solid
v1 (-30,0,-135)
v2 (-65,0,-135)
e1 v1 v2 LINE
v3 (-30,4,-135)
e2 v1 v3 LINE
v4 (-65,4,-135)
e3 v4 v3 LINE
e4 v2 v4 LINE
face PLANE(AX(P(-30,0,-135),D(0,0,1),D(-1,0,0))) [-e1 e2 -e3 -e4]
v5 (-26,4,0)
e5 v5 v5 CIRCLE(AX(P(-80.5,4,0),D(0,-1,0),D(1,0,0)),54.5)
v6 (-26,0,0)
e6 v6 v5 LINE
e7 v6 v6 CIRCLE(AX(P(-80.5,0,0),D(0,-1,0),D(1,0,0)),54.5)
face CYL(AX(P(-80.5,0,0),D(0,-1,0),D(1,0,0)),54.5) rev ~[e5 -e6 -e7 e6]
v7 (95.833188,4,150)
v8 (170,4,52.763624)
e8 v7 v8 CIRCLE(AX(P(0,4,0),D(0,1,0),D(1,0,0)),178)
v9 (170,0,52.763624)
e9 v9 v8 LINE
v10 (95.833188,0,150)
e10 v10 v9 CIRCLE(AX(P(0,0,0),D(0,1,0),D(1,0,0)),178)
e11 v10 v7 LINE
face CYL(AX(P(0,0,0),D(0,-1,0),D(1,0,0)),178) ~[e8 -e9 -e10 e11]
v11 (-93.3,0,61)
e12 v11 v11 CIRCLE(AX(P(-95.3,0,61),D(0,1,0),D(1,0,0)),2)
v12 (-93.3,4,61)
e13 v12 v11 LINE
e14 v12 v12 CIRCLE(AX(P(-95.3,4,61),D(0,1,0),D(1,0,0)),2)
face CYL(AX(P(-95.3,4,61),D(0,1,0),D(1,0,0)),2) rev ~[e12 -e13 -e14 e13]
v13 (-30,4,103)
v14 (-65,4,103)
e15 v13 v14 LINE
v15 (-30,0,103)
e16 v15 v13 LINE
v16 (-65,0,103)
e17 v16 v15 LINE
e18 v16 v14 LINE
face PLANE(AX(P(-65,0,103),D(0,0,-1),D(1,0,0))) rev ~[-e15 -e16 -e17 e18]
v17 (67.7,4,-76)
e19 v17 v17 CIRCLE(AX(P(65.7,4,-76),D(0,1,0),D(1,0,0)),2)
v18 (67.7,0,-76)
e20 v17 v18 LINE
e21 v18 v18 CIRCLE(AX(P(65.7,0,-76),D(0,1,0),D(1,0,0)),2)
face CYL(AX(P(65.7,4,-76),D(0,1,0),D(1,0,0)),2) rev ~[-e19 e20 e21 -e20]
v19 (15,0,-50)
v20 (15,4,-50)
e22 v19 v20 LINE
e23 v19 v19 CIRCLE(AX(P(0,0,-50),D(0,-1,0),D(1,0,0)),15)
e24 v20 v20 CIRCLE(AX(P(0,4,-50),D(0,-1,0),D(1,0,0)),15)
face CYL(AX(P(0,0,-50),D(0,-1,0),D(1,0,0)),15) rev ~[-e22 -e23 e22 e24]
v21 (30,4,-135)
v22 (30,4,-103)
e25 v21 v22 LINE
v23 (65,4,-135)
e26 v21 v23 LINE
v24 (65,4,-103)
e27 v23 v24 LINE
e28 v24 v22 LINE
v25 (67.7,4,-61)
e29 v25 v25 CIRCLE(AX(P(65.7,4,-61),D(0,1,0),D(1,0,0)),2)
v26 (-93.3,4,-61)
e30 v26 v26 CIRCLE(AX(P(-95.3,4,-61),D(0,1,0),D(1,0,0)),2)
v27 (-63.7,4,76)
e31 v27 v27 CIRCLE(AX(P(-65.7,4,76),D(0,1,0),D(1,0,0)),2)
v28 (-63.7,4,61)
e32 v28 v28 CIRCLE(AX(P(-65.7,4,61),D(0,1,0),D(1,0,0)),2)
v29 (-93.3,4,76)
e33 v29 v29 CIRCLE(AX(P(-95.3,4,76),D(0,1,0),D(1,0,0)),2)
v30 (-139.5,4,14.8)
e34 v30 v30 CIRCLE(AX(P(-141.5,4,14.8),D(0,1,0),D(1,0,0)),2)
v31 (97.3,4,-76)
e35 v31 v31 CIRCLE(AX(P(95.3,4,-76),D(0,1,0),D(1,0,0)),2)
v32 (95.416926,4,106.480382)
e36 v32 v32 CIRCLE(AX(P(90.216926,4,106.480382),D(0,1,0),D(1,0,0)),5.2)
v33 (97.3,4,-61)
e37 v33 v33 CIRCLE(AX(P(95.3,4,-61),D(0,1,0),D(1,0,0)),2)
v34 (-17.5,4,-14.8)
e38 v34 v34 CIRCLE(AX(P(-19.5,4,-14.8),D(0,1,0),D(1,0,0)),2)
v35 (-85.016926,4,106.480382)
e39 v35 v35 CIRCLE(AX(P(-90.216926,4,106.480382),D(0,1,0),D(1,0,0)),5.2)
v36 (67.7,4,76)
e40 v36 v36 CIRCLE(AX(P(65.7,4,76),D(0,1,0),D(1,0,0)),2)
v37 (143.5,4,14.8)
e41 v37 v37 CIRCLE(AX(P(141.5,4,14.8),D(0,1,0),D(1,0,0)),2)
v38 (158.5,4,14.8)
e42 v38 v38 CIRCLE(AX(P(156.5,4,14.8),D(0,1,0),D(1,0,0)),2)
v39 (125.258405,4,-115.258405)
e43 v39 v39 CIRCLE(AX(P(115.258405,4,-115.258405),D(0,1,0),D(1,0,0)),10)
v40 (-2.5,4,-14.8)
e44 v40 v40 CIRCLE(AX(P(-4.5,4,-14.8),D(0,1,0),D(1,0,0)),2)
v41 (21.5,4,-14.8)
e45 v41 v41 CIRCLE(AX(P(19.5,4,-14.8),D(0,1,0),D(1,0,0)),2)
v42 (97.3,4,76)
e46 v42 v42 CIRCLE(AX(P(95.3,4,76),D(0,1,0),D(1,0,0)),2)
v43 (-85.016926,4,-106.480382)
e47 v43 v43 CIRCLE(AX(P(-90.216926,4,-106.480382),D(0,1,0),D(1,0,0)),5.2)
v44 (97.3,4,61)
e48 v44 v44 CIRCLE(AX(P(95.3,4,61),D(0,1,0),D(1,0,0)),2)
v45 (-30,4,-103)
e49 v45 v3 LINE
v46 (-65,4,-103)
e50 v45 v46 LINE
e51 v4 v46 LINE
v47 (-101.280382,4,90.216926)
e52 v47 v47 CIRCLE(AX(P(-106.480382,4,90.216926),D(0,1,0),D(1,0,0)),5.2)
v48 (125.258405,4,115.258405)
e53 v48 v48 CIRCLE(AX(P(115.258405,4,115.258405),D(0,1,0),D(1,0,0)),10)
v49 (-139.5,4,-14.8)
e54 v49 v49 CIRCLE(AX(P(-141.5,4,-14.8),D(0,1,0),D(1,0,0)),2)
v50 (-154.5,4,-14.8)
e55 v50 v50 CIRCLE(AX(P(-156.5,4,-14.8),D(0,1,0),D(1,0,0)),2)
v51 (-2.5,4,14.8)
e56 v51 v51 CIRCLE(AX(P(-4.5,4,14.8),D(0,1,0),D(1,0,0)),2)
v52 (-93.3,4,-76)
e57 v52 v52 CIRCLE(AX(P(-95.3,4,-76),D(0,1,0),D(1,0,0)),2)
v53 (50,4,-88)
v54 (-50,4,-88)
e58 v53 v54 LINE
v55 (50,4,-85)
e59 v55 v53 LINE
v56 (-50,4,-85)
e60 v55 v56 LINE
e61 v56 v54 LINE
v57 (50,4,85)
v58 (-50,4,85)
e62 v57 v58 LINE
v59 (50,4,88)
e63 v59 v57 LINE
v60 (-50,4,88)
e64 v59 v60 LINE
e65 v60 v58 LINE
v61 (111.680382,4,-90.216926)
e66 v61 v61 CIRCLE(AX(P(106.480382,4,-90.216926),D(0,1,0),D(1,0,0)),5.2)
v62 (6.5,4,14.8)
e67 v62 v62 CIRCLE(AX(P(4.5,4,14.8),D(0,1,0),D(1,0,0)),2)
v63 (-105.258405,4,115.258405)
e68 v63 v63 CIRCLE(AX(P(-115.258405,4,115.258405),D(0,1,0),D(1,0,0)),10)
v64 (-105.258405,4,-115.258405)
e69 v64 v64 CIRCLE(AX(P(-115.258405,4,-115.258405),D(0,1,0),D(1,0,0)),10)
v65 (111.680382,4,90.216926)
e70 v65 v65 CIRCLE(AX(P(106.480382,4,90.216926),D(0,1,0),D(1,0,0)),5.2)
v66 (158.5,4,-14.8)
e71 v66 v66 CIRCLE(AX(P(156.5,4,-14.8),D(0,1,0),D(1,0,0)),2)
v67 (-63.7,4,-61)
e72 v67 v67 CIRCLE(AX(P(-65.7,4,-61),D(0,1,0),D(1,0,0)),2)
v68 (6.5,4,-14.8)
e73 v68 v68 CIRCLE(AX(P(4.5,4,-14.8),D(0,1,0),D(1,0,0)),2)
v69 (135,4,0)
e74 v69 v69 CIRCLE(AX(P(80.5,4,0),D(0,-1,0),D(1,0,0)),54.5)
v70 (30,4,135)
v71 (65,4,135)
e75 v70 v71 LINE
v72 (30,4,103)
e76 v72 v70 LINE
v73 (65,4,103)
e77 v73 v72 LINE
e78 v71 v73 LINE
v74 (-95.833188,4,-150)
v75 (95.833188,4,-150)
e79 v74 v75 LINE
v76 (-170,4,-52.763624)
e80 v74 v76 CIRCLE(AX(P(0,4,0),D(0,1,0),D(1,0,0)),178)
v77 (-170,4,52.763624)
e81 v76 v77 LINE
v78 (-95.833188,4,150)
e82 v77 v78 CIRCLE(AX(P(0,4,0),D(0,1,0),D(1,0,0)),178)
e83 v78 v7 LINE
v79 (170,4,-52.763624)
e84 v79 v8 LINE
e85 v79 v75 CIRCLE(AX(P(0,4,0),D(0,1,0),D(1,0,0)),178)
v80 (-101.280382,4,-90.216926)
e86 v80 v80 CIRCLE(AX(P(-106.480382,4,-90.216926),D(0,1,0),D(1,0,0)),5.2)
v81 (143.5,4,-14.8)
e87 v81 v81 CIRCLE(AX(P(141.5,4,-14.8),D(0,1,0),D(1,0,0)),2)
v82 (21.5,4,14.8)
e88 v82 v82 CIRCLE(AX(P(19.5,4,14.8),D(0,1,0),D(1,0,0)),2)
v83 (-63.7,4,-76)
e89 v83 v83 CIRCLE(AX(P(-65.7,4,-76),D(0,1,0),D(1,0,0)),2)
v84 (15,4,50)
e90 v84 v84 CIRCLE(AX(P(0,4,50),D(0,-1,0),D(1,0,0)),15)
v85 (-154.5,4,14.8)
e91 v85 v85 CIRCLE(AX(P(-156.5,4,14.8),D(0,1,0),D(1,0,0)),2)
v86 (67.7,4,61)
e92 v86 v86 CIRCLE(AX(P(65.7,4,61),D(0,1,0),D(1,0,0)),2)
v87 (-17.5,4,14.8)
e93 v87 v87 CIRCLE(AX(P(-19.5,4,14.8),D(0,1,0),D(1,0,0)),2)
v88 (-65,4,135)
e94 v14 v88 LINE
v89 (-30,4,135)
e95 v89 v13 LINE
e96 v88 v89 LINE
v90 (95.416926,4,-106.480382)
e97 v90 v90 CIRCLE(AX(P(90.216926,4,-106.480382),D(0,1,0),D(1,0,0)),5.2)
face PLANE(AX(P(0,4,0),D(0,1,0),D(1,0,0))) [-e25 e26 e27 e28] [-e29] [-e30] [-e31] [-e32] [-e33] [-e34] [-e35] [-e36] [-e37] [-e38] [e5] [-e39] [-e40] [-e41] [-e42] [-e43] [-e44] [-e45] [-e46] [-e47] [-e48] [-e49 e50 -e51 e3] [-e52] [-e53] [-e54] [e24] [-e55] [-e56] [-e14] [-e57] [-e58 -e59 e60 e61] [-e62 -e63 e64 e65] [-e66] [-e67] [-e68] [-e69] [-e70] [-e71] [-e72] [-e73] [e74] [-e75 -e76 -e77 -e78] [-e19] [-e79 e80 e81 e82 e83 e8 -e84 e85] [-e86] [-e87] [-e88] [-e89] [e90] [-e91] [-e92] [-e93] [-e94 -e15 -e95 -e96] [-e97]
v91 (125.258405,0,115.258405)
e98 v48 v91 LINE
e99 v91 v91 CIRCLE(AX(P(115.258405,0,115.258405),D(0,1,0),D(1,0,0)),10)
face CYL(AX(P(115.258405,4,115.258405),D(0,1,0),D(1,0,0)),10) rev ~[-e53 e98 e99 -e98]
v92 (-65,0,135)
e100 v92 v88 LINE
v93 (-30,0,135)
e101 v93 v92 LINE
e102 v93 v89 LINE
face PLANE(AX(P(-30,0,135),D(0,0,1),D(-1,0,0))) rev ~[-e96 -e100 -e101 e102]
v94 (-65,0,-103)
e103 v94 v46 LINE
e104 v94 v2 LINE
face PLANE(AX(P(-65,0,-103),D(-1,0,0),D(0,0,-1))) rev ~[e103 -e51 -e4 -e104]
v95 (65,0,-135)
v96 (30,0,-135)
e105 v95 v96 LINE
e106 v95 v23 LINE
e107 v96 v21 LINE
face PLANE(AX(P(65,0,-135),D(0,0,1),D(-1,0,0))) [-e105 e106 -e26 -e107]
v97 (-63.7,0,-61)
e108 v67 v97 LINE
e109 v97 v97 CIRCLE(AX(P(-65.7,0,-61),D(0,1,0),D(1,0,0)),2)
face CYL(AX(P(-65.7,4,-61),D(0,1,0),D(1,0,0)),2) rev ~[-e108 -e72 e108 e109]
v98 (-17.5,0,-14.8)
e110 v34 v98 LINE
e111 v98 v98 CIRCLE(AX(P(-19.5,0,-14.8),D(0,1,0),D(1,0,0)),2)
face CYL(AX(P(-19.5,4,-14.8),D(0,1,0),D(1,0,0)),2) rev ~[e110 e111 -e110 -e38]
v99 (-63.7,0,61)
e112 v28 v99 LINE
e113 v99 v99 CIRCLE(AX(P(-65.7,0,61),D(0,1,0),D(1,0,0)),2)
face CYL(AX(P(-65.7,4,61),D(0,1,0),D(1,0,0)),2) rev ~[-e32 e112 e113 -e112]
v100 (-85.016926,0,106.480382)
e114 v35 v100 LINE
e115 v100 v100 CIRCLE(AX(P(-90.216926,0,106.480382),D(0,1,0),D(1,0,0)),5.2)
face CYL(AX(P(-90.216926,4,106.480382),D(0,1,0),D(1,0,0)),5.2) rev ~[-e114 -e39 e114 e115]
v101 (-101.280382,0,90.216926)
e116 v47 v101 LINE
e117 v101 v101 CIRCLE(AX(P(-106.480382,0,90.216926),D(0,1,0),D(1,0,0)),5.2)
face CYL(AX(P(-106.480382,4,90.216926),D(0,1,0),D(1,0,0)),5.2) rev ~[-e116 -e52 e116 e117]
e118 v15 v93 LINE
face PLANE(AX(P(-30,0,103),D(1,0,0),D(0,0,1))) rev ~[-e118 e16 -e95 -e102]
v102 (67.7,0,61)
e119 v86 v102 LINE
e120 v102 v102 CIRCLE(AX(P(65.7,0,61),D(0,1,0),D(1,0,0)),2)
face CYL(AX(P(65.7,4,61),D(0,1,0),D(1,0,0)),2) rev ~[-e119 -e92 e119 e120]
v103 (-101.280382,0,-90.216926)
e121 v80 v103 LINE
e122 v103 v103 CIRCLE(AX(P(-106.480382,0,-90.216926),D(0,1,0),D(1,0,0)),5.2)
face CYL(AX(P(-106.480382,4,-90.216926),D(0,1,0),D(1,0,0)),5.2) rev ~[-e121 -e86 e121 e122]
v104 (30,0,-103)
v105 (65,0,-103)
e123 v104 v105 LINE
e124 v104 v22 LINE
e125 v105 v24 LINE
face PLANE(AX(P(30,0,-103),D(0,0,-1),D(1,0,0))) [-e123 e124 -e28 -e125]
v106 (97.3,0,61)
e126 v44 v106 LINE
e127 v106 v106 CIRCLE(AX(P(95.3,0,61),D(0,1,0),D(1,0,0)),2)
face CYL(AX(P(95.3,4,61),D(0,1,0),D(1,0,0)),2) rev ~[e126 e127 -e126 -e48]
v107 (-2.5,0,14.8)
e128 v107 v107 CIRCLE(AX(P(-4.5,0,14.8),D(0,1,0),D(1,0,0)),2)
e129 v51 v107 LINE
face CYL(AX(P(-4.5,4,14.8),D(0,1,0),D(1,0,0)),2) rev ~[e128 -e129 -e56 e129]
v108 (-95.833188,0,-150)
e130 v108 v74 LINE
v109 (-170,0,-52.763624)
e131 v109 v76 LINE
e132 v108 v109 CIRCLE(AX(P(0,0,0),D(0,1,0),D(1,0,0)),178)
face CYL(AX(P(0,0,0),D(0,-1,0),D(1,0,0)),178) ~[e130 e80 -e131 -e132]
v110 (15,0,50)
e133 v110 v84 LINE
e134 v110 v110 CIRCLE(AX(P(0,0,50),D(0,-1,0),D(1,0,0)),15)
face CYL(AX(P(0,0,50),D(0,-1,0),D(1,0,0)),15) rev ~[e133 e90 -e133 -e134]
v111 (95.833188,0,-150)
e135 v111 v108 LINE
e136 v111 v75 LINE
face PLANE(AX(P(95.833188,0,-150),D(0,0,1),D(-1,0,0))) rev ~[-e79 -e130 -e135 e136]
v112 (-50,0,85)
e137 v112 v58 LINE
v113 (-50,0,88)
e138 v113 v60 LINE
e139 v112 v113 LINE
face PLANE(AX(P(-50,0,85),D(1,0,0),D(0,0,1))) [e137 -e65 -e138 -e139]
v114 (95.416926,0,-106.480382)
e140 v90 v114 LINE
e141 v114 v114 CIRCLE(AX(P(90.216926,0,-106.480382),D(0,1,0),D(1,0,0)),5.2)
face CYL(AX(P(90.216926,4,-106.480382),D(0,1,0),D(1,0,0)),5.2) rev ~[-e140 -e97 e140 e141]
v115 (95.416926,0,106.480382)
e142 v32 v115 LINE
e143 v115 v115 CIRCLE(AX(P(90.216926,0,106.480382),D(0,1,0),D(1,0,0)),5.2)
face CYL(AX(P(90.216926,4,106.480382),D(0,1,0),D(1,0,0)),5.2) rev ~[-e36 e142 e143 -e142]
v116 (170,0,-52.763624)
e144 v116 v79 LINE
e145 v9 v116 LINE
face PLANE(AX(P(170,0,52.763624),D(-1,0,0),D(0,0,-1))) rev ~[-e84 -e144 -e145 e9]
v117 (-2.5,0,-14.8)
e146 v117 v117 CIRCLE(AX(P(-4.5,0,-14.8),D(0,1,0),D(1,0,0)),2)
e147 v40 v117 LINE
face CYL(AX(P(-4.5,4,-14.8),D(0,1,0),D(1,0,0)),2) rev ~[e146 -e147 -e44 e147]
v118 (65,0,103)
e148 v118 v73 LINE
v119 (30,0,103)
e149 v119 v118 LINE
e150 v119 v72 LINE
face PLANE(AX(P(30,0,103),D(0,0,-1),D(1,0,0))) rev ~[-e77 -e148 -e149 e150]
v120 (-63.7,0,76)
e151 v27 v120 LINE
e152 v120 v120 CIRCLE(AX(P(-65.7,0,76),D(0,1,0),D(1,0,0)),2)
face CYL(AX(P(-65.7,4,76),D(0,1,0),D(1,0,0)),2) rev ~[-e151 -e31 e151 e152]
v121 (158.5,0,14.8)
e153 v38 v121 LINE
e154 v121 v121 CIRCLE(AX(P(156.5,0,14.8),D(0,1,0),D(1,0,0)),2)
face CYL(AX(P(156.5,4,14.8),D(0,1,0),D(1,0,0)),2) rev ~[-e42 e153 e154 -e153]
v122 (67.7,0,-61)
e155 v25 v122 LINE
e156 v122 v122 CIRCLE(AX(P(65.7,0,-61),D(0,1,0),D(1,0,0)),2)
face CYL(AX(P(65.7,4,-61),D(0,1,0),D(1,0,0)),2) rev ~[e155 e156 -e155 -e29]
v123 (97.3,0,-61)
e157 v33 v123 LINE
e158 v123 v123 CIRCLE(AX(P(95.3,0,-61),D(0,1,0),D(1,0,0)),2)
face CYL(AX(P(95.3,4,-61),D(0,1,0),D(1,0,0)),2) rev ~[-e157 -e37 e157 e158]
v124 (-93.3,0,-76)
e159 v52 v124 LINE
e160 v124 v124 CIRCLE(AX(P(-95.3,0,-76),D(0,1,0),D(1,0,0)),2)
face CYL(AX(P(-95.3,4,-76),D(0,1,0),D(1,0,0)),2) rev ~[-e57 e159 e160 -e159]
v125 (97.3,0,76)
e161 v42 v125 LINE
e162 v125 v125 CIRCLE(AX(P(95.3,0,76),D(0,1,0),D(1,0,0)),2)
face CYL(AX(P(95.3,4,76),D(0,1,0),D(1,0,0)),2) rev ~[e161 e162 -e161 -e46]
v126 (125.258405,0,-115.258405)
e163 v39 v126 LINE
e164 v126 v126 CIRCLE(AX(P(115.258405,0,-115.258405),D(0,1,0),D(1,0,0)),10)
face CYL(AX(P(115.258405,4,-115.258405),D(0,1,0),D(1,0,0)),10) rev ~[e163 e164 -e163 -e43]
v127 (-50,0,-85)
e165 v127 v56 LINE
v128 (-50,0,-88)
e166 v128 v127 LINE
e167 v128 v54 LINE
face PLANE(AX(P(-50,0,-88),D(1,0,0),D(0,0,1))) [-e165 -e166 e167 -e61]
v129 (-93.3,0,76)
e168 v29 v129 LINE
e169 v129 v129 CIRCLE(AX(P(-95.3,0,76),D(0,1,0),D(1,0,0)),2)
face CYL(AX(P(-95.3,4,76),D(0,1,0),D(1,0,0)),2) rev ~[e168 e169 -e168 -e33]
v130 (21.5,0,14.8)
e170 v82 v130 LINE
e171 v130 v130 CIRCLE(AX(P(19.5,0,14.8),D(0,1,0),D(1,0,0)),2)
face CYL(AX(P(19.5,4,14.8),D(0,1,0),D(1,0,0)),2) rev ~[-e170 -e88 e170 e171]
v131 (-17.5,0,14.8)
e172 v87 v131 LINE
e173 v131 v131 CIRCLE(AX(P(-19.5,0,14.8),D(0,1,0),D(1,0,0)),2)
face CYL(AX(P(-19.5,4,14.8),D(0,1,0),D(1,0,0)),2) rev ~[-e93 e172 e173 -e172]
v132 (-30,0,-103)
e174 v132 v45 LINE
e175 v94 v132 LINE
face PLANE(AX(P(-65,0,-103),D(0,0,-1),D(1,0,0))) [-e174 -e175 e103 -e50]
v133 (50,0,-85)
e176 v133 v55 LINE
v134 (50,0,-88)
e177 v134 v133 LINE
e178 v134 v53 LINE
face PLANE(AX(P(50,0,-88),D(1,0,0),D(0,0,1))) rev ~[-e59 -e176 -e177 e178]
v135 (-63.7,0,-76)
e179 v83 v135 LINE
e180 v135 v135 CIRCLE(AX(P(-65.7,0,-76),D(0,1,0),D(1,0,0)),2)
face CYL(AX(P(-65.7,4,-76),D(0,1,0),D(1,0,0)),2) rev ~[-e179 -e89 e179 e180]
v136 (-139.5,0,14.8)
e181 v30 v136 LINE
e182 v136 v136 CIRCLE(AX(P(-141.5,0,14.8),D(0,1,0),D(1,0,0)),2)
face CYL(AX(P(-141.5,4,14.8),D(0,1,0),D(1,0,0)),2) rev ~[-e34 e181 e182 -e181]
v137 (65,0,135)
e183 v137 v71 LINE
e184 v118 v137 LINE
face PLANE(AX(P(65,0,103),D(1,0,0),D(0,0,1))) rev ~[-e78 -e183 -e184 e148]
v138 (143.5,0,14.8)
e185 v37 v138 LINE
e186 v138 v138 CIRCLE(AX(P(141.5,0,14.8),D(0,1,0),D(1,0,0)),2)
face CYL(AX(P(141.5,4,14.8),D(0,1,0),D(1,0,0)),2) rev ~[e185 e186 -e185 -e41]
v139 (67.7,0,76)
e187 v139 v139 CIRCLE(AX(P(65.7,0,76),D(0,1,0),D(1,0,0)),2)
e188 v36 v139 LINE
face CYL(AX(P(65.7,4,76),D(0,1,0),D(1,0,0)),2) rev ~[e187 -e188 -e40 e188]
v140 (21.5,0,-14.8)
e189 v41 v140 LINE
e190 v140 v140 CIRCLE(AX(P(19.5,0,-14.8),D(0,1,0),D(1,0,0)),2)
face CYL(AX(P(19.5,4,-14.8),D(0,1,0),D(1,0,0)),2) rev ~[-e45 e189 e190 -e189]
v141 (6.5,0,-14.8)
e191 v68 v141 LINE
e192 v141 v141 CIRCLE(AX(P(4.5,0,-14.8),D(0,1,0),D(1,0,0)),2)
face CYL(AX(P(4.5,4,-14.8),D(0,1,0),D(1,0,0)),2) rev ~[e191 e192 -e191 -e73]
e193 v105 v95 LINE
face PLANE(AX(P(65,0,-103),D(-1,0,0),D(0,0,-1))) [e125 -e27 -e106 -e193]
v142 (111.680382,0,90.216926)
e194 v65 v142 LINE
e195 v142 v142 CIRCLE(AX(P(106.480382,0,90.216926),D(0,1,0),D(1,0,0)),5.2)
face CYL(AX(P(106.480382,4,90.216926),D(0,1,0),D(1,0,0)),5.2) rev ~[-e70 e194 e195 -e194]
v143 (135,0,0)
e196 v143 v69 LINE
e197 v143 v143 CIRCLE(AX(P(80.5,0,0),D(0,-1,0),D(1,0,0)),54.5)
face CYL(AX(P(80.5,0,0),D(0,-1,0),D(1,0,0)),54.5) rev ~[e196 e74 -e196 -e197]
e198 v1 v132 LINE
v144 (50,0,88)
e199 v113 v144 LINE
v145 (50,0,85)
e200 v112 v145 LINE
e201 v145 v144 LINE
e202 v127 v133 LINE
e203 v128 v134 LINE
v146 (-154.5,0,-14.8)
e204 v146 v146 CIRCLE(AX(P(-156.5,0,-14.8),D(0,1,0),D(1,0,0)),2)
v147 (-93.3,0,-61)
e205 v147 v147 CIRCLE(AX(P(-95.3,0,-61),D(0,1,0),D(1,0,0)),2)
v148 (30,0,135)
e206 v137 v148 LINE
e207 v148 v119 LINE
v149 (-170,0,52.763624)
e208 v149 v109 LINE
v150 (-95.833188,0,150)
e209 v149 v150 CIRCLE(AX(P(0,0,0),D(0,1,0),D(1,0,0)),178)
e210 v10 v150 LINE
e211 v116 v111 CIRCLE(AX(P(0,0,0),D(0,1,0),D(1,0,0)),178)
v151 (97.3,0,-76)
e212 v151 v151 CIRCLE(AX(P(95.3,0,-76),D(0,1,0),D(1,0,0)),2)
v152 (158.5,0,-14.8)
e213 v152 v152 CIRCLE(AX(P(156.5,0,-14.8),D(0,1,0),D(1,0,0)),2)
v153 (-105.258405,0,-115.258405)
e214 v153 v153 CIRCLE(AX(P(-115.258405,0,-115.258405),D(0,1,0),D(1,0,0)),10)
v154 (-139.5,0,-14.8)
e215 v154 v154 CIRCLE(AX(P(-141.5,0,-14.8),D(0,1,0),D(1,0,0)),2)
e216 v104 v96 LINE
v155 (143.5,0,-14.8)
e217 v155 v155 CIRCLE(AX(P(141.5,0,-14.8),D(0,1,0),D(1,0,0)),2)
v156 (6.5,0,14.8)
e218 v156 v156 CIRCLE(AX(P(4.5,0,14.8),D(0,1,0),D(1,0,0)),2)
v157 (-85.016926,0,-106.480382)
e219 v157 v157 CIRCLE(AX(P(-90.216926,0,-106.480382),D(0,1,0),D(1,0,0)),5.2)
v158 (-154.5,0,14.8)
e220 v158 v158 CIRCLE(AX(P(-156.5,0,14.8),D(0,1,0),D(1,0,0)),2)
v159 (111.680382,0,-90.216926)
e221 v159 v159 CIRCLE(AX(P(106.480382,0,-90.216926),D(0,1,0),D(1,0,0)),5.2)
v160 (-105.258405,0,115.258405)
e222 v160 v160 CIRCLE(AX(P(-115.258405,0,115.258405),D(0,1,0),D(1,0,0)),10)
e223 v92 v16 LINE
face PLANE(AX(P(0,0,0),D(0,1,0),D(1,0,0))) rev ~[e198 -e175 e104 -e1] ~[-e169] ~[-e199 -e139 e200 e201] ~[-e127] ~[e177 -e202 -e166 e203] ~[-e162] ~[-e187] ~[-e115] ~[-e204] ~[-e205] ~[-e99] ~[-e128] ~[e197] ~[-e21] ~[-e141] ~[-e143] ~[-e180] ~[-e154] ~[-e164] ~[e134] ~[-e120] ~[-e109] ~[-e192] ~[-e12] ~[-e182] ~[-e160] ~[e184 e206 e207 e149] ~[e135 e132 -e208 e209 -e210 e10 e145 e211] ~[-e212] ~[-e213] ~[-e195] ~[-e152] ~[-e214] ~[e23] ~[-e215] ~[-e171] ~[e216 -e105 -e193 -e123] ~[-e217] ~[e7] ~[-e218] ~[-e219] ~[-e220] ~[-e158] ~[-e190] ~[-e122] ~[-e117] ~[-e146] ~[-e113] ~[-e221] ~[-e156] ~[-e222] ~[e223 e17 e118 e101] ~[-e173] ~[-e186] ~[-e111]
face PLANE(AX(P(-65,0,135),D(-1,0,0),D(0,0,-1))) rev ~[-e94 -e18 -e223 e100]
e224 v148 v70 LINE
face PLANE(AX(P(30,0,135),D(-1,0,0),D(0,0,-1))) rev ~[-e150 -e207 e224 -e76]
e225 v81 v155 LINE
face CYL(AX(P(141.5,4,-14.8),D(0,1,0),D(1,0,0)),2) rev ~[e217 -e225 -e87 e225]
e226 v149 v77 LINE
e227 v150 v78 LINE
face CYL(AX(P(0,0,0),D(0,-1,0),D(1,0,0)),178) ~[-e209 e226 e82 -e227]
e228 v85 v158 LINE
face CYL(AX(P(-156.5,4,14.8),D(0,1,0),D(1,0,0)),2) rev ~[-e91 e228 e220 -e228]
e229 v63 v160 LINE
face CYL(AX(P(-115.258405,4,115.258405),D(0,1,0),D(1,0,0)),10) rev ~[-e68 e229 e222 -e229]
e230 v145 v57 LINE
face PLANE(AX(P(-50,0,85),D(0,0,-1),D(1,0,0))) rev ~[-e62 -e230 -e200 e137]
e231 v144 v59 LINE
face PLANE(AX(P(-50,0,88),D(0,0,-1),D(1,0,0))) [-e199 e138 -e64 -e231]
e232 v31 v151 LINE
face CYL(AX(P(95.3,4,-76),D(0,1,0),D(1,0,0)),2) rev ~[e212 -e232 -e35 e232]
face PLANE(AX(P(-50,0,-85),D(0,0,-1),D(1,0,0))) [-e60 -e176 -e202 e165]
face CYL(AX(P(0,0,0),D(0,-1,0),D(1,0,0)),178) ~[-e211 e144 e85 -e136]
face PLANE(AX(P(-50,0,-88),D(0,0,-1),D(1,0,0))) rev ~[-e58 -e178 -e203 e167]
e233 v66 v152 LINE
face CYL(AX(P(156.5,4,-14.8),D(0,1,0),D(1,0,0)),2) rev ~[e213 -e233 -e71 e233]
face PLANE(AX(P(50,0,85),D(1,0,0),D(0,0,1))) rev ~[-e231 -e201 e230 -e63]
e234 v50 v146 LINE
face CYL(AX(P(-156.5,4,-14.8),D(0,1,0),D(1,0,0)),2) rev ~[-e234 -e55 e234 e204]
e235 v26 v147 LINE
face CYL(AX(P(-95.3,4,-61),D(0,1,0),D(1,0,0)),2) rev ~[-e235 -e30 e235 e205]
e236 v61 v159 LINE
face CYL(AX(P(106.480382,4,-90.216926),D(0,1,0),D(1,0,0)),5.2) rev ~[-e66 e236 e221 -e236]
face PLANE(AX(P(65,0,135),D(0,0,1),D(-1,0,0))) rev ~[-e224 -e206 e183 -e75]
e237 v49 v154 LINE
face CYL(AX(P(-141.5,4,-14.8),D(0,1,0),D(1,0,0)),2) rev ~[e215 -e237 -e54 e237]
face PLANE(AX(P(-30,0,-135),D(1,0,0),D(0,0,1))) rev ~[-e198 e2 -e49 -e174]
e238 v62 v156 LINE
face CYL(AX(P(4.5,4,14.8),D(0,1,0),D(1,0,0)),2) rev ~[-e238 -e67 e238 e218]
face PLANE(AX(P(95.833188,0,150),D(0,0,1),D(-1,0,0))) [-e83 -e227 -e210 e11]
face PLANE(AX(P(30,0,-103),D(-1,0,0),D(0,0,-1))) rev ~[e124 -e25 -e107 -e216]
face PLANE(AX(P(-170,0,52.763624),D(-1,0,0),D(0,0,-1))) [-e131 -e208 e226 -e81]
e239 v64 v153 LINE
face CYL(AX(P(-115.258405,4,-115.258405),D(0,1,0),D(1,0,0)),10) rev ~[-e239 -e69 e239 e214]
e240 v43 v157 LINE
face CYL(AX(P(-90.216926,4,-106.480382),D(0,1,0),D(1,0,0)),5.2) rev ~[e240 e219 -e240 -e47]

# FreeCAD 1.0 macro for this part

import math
import FreeCAD as App
import Part
import Sketcher
Q = App.Units.Quantity

doc = App.newDocument("Part")
body = doc.addObject("PartDesign::Body", "Body")

sketch1 = doc.addObject("Sketcher::SketchObject", "Sketch")
body.addObject(sketch1)
sketch1.AttachmentSupport = (doc.XZ_Plane, [""])
sketch1.MapMode = "FlatFace"
sketch1.addGeometry(Part.Circle(App.Vector(0, 0, 0), App.Vector(0, 0, 1), 178), False)
sketch1.addConstraint(Sketcher.Constraint("Coincident", 0, 3, -1, 1))
sketch1.addConstraint(Sketcher.Constraint("Diameter", 0, Q("356 mm")))
pad1 = doc.addObject("PartDesign::Pad", "Pad")
body.addObject(pad1)
pad1.Profile = sketch1
pad1.Length = 4
pad1.Reversed = True

sketch2 = doc.addObject("Sketcher::SketchObject", "Sketch001")
body.addObject(sketch2)
sketch2.AttachmentSupport = (doc.XZ_Plane, [""])
sketch2.MapMode = "FlatFace"
sketch2.AttachmentOffset = App.Placement(App.Vector(0, 0, -4), App.Rotation())
sketch2.addGeometry(Part.Circle(App.Vector(115.258405, -115.258405, 0), App.Vector(0, 0, 1), 10), False)
sketch2.addGeometry(Part.Circle(App.Vector(-90.216926, 106.480382, 0), App.Vector(0, 0, 1), 5.2), False)
sketch2.addGeometry(Part.Circle(App.Vector(-106.480382, 90.216926, 0), App.Vector(0, 0, 1), 5.2), False)
sketch2.addGeometry(Part.Circle(App.Vector(115.258405, 115.258405, 0), App.Vector(0, 0, 1), 10), False)
sketch2.addGeometry(Part.Circle(App.Vector(-115.258405, 115.258405, 0), App.Vector(0, 0, 1), 10), False)
sketch2.addGeometry(Part.Circle(App.Vector(-115.258405, -115.258405, 0), App.Vector(0, 0, 1), 10), False)
sketch2.addGeometry(Part.Circle(App.Vector(-90.216926, -106.480382, 0), App.Vector(0, 0, 1), 5.2), False)
sketch2.addGeometry(Part.Circle(App.Vector(-106.480382, -90.216926, 0), App.Vector(0, 0, 1), 5.2), False)
sketch2.addGeometry(Part.Circle(App.Vector(106.480382, -90.216926, 0), App.Vector(0, 0, 1), 5.2), False)
sketch2.addGeometry(Part.Circle(App.Vector(90.216926, -106.480382, 0), App.Vector(0, 0, 1), 5.2), False)
sketch2.addGeometry(Part.Circle(App.Vector(90.216926, 106.480382, 0), App.Vector(0, 0, 1), 5.2), False)
sketch2.addGeometry(Part.Circle(App.Vector(106.480382, 90.216926, 0), App.Vector(0, 0, 1), 5.2), False)
sketch2.addConstraint(Sketcher.Constraint("Equal", 1, 2))
sketch2.addConstraint(Sketcher.Constraint("Equal", 0, 3))
sketch2.addConstraint(Sketcher.Constraint("Equal", 3, 4))
sketch2.addConstraint(Sketcher.Constraint("Equal", 4, 5))
sketch2.addConstraint(Sketcher.Constraint("Equal", 2, 6))
sketch2.addConstraint(Sketcher.Constraint("Equal", 6, 7))
sketch2.addConstraint(Sketcher.Constraint("Equal", 7, 8))
sketch2.addConstraint(Sketcher.Constraint("Equal", 8, 9))
sketch2.addConstraint(Sketcher.Constraint("Equal", 9, 10))
sketch2.addConstraint(Sketcher.Constraint("Equal", 10, 11))
sketch2.addConstraint(Sketcher.Constraint("Symmetric", 0, 3, 4, 3, -1, 1))
sketch2.addConstraint(Sketcher.Constraint("Symmetric", 3, 3, 5, 3, -1, 1))
sketch2.addConstraint(Sketcher.Constraint("Symmetric", 2, 3, 8, 3, -1, 1))
sketch2.addConstraint(Sketcher.Constraint("Symmetric", 1, 3, 9, 3, -1, 1))
sketch2.addConstraint(Sketcher.Constraint("Symmetric", 6, 3, 10, 3, -1, 1))
sketch2.addConstraint(Sketcher.Constraint("Symmetric", 7, 3, 11, 3, -1, 1))
sketch2.addConstraint(Sketcher.Constraint("Symmetric", 3, 3, 4, 3, -2))
sketch2.addConstraint(Sketcher.Constraint("Symmetric", 7, 3, 8, 3, -2))
sketch2.addConstraint(Sketcher.Constraint("Symmetric", 6, 3, 9, 3, -2))
sketch2.addConstraint(Sketcher.Constraint("Diameter", 0, Q("20 mm")))
sketch2.addConstraint(Sketcher.Constraint("Diameter", 1, Q("10.4 mm")))
sketch2.addConstraint(Sketcher.Constraint("DistanceY", -1, 1, 1, 3, Q("106.480382 mm")))
sketch2.addConstraint(Sketcher.Constraint("DistanceX", 2, 3, -1, 1, Q("106.480382 mm")))
sketch2.addConstraint(Sketcher.Constraint("DistanceX", 1, 3, 0, 3, Q("205.475331 mm")))
sketch2.addConstraint(Sketcher.Constraint("DistanceY", 0, 3, 2, 3, Q("205.475331 mm")))
sketch2.addConstraint(Sketcher.Constraint("DistanceY", 2, 3, 3, 3, Q("25.04148 mm")))
sketch2.addConstraint(Sketcher.Constraint("DistanceX", 4, 3, 1, 3, Q("25.04148 mm")))
pocket1 = doc.addObject("PartDesign::Pocket", "Pocket")
body.addObject(pocket1)
pocket1.Profile = sketch2
pocket1.Length = 10
pocket1.Reversed = True

sketch3 = doc.addObject("Sketcher::SketchObject", "Sketch002")
body.addObject(sketch3)
sketch3.AttachmentSupport = (doc.XZ_Plane, [""])
sketch3.MapMode = "FlatFace"
sketch3.addGeometry(Part.Circle(App.Vector(80.5, 0, 0), App.Vector(0, 0, 1), 54.5), False)
sketch3.addGeometry(Part.Circle(App.Vector(-80.5, 0, 0), App.Vector(0, 0, 1), 54.5), False)
sketch3.addConstraint(Sketcher.Constraint("Equal", 0, 1))
sketch3.addConstraint(Sketcher.Constraint("Symmetric", 0, 3, 1, 3, -1, 1))
sketch3.addConstraint(Sketcher.Constraint("PointOnObject", 0, 3, -1))
sketch3.addConstraint(Sketcher.Constraint("Diameter", 0, Q("109 mm")))
sketch3.addConstraint(Sketcher.Constraint("DistanceX", 1, 3, 0, 3, Q("161 mm")))
pocket2 = doc.addObject("PartDesign::Pocket", "Pocket001")
body.addObject(pocket2)
pocket2.Profile = sketch3
pocket2.Length = 10

sketch4 = doc.addObject("Sketcher::SketchObject", "Sketch003")
body.addObject(sketch4)
sketch4.AttachmentSupport = (doc.XZ_Plane, [""])
sketch4.MapMode = "FlatFace"
sketch4.AttachmentOffset = App.Placement(App.Vector(0, 0, -4), App.Rotation())
sketch4.addGeometry(Part.Circle(App.Vector(-19.5, 14.8, 0), App.Vector(0, 0, 1), 2), False)
sketch4.addGeometry(Part.Circle(App.Vector(-4.5, 14.8, 0), App.Vector(0, 0, 1), 2), False)
sketch4.addGeometry(Part.Circle(App.Vector(-4.5, -14.8, 0), App.Vector(0, 0, 1), 2), False)
sketch4.addGeometry(Part.Circle(App.Vector(-19.5, -14.8, 0), App.Vector(0, 0, 1), 2), False)
sketch4.addGeometry(Part.Circle(App.Vector(4.5, 14.8, 0), App.Vector(0, 0, 1), 2), False)
sketch4.addGeometry(Part.Circle(App.Vector(19.5, 14.8, 0), App.Vector(0, 0, 1), 2), False)
sketch4.addGeometry(Part.Circle(App.Vector(19.5, -14.8, 0), App.Vector(0, 0, 1), 2), False)
sketch4.addGeometry(Part.Circle(App.Vector(4.5, -14.8, 0), App.Vector(0, 0, 1), 2), False)
sketch4.addGeometry(Part.Circle(App.Vector(-65.7, 61, 0), App.Vector(0, 0, 1), 2), False)
sketch4.addGeometry(Part.Circle(App.Vector(-65.7, 76, 0), App.Vector(0, 0, 1), 2), False)
sketch4.addGeometry(Part.Circle(App.Vector(-95.3, 61, 0), App.Vector(0, 0, 1), 2), False)
sketch4.addGeometry(Part.Circle(App.Vector(-95.3, 76, 0), App.Vector(0, 0, 1), 2), False)
sketch4.addGeometry(Part.Circle(App.Vector(-141.5, 14.8, 0), App.Vector(0, 0, 1), 2), False)
sketch4.addGeometry(Part.Circle(App.Vector(-156.5, 14.8, 0), App.Vector(0, 0, 1), 2), False)
sketch4.addGeometry(Part.Circle(App.Vector(-141.5, -14.8, 0), App.Vector(0, 0, 1), 2), False)
sketch4.addGeometry(Part.Circle(App.Vector(-156.5, -14.8, 0), App.Vector(0, 0, 1), 2), False)
sketch4.addGeometry(Part.Circle(App.Vector(-95.3, -61, 0), App.Vector(0, 0, 1), 2), False)
sketch4.addGeometry(Part.Circle(App.Vector(-95.3, -76, 0), App.Vector(0, 0, 1), 2), False)
sketch4.addGeometry(Part.Circle(App.Vector(-65.7, -61, 0), App.Vector(0, 0, 1), 2), False)
sketch4.addGeometry(Part.Circle(App.Vector(-65.7, -76, 0), App.Vector(0, 0, 1), 2), False)
sketch4.addGeometry(Part.Circle(App.Vector(95.3, -76, 0), App.Vector(0, 0, 1), 2), False)
sketch4.addGeometry(Part.Circle(App.Vector(95.3, -61, 0), App.Vector(0, 0, 1), 2), False)
sketch4.addGeometry(Part.Circle(App.Vector(65.7, -76, 0), App.Vector(0, 0, 1), 2), False)
sketch4.addGeometry(Part.Circle(App.Vector(65.7, -61, 0), App.Vector(0, 0, 1), 2), False)
sketch4.addGeometry(Part.Circle(App.Vector(156.5, 14.8, 0), App.Vector(0, 0, 1), 2), False)
sketch4.addGeometry(Part.Circle(App.Vector(141.5, 14.8, 0), App.Vector(0, 0, 1), 2), False)
sketch4.addGeometry(Part.Circle(App.Vector(156.5, -14.8, 0), App.Vector(0, 0, 1), 2), False)
sketch4.addGeometry(Part.Circle(App.Vector(141.5, -14.8, 0), App.Vector(0, 0, 1), 2), False)
sketch4.addGeometry(Part.Circle(App.Vector(65.7, 76, 0), App.Vector(0, 0, 1), 2), False)
sketch4.addGeometry(Part.Circle(App.Vector(65.7, 61, 0), App.Vector(0, 0, 1), 2), False)
sketch4.addGeometry(Part.Circle(App.Vector(95.3, 76, 0), App.Vector(0, 0, 1), 2), False)
sketch4.addGeometry(Part.Circle(App.Vector(95.3, 61, 0), App.Vector(0, 0, 1), 2), False)
sketch4.addConstraint(Sketcher.Constraint("Equal", 0, 1))
sketch4.addConstraint(Sketcher.Constraint("Equal", 1, 2))
sketch4.addConstraint(Sketcher.Constraint("Equal", 2, 3))
sketch4.addConstraint(Sketcher.Constraint("Equal", 3, 4))
sketch4.addConstraint(Sketcher.Constraint("Equal", 4, 5))
sketch4.addConstraint(Sketcher.Constraint("Equal", 5, 6))
sketch4.addConstraint(Sketcher.Constraint("Equal", 6, 7))
sketch4.addConstraint(Sketcher.Constraint("Equal", 7, 8))
sketch4.addConstraint(Sketcher.Constraint("Equal", 8, 9))
sketch4.addConstraint(Sketcher.Constraint("Equal", 9, 10))
sketch4.addConstraint(Sketcher.Constraint("Equal", 10, 11))
sketch4.addConstraint(Sketcher.Constraint("Equal", 11, 12))
sketch4.addConstraint(Sketcher.Constraint("Equal", 12, 13))
sketch4.addConstraint(Sketcher.Constraint("Equal", 13, 14))
sketch4.addConstraint(Sketcher.Constraint("Equal", 14, 15))
sketch4.addConstraint(Sketcher.Constraint("Equal", 15, 16))
sketch4.addConstraint(Sketcher.Constraint("Equal", 16, 17))
sketch4.addConstraint(Sketcher.Constraint("Equal", 17, 18))
sketch4.addConstraint(Sketcher.Constraint("Equal", 18, 19))
sketch4.addConstraint(Sketcher.Constraint("Equal", 19, 20))
sketch4.addConstraint(Sketcher.Constraint("Equal", 20, 21))
sketch4.addConstraint(Sketcher.Constraint("Equal", 21, 22))
sketch4.addConstraint(Sketcher.Constraint("Equal", 22, 23))
sketch4.addConstraint(Sketcher.Constraint("Equal", 23, 24))
sketch4.addConstraint(Sketcher.Constraint("Equal", 24, 25))
sketch4.addConstraint(Sketcher.Constraint("Equal", 25, 26))
sketch4.addConstraint(Sketcher.Constraint("Equal", 26, 27))
sketch4.addConstraint(Sketcher.Constraint("Equal", 27, 28))
sketch4.addConstraint(Sketcher.Constraint("Equal", 28, 29))
sketch4.addConstraint(Sketcher.Constraint("Equal", 29, 30))
sketch4.addConstraint(Sketcher.Constraint("Equal", 30, 31))
sketch4.addConstraint(Sketcher.Constraint("Symmetric", 2, 3, 4, 3, -1, 1))
sketch4.addConstraint(Sketcher.Constraint("Symmetric", 3, 3, 5, 3, -1, 1))
sketch4.addConstraint(Sketcher.Constraint("Symmetric", 0, 3, 6, 3, -1, 1))
sketch4.addConstraint(Sketcher.Constraint("Symmetric", 1, 3, 7, 3, -1, 1))
sketch4.addConstraint(Sketcher.Constraint("Symmetric", 11, 3, 20, 3, -1, 1))
sketch4.addConstraint(Sketcher.Constraint("Symmetric", 10, 3, 21, 3, -1, 1))
sketch4.addConstraint(Sketcher.Constraint("Symmetric", 9, 3, 22, 3, -1, 1))
sketch4.addConstraint(Sketcher.Constraint("Symmetric", 8, 3, 23, 3, -1, 1))
sketch4.addConstraint(Sketcher.Constraint("Symmetric", 15, 3, 24, 3, -1, 1))
sketch4.addConstraint(Sketcher.Constraint("Symmetric", 14, 3, 25, 3, -1, 1))
sketch4.addConstraint(Sketcher.Constraint("Symmetric", 13, 3, 26, 3, -1, 1))
sketch4.addConstraint(Sketcher.Constraint("Symmetric", 12, 3, 27, 3, -1, 1))
sketch4.addConstraint(Sketcher.Constraint("Symmetric", 19, 3, 28, 3, -1, 1))
sketch4.addConstraint(Sketcher.Constraint("Symmetric", 18, 3, 29, 3, -1, 1))
sketch4.addConstraint(Sketcher.Constraint("Symmetric", 17, 3, 30, 3, -1, 1))
sketch4.addConstraint(Sketcher.Constraint("Symmetric", 16, 3, 31, 3, -1, 1))
sketch4.addConstraint(Sketcher.Constraint("Symmetric", 1, 3, 4, 3, -2))
sketch4.addConstraint(Sketcher.Constraint("Symmetric", 0, 3, 5, 3, -2))
sketch4.addConstraint(Sketcher.Constraint("Symmetric", 17, 3, 20, 3, -2))
sketch4.addConstraint(Sketcher.Constraint("Symmetric", 16, 3, 21, 3, -2))
sketch4.addConstraint(Sketcher.Constraint("Symmetric", 19, 3, 22, 3, -2))
sketch4.addConstraint(Sketcher.Constraint("Symmetric", 18, 3, 23, 3, -2))
sketch4.addConstraint(Sketcher.Constraint("Symmetric", 13, 3, 24, 3, -2))
sketch4.addConstraint(Sketcher.Constraint("Symmetric", 12, 3, 25, 3, -2))
sketch4.addConstraint(Sketcher.Constraint("Horizontal", 0, 3, 1, 3))
sketch4.addConstraint(Sketcher.Constraint("Horizontal", 8, 3, 10, 3))
sketch4.addConstraint(Sketcher.Constraint("Horizontal", 9, 3, 11, 3))
sketch4.addConstraint(Sketcher.Constraint("Horizontal", 5, 3, 12, 3))
sketch4.addConstraint(Sketcher.Constraint("Horizontal", 12, 3, 13, 3))
sketch4.addConstraint(Sketcher.Constraint("Vertical", 8, 3, 9, 3))
sketch4.addConstraint(Sketcher.Constraint("Vertical", 10, 3, 11, 3))
sketch4.addConstraint(Sketcher.Constraint("Diameter", 0, Q("4 mm")))
sketch4.addConstraint(Sketcher.Constraint("DistanceY", -1, 1, 8, 3, Q("61 mm")))
sketch4.addConstraint(Sketcher.Constraint("DistanceY", -1, 1, 9, 3, Q("76 mm")))
sketch4.addConstraint(Sketcher.Constraint("DistanceX", 0, 3, 1, 3, Q("15 mm")))
sketch4.addConstraint(Sketcher.Constraint("DistanceX", 1, 3, 4, 3, Q("9 mm")))
sketch4.addConstraint(Sketcher.Constraint("DistanceX", 12, 3, 0, 3, Q("122 mm")))
sketch4.addConstraint(Sketcher.Constraint("DistanceX", 13, 3, 12, 3, Q("15 mm")))
sketch4.addConstraint(Sketcher.Constraint("DistanceY", -1, 1, 0, 3, Q("14.8 mm")))
sketch4.addConstraint(Sketcher.Constraint("DistanceX", 8, 3, -1, 1, Q("65.7 mm")))
sketch4.addConstraint(Sketcher.Constraint("DistanceX", 10, 3, -1, 1, Q("95.3 mm")))
pocket3 = doc.addObject("PartDesign::Pocket", "Pocket002")
body.addObject(pocket3)
pocket3.Profile = sketch4
pocket3.Length = 10
pocket3.Reversed = True

sketch5 = doc.addObject("Sketcher::SketchObject", "Sketch004")
body.addObject(sketch5)
sketch5.AttachmentSupport = (doc.XZ_Plane, [""])
sketch5.MapMode = "FlatFace"
sketch5.addGeometry(Part.LineSegment(App.Vector(-95.833188, 150, 0), App.Vector(95.833188, 150, 0)), False)
sketch5.addGeometry(Part.ArcOfCircle(Part.Circle(App.Vector(0, 0, 0), App.Vector(0, 0, 1), 178), math.radians(57.425982), math.radians(122.574018)), False)
sketch5.addGeometry(Part.LineSegment(App.Vector(170, 52.763624, 0), App.Vector(170, -52.763624, 0)), False)
sketch5.addGeometry(Part.ArcOfCircle(Part.Circle(App.Vector(0, 0, 0), App.Vector(0, 0, 1), 178), math.radians(-17.242997), math.radians(17.242997)), False)
sketch5.addGeometry(Part.ArcOfCircle(Part.Circle(App.Vector(0, 0, 0), App.Vector(0, 0, 1), 178), math.radians(-122.574018), math.radians(-57.425982)), False)
sketch5.addGeometry(Part.LineSegment(App.Vector(95.833188, -150, 0), App.Vector(-95.833188, -150, 0)), False)
sketch5.addGeometry(Part.ArcOfCircle(Part.Circle(App.Vector(0, 0, 0), App.Vector(0, 0, 1), 178), math.radians(162.757003), math.radians(197.242997)), False)
sketch5.addGeometry(Part.LineSegment(App.Vector(-170, -52.763624, 0), App.Vector(-170, 52.763624, 0)), False)
sketch5.addConstraint(Sketcher.Constraint("Coincident", 0, 1, 1, 2))
sketch5.addConstraint(Sketcher.Constraint("Coincident", 1, 1, 0, 2))
sketch5.addConstraint(Sketcher.Constraint("Coincident", 2, 1, 3, 2))
sketch5.addConstraint(Sketcher.Constraint("Coincident", 3, 1, 2, 2))
sketch5.addConstraint(Sketcher.Constraint("Coincident", 4, 1, 5, 2))
sketch5.addConstraint(Sketcher.Constraint("Coincident", 5, 1, 4, 2))
sketch5.addConstraint(Sketcher.Constraint("Coincident", 6, 1, 7, 2))
sketch5.addConstraint(Sketcher.Constraint("Coincident", 7, 1, 6, 2))
sketch5.addConstraint(Sketcher.Constraint("Horizontal", 0))
sketch5.addConstraint(Sketcher.Constraint("Vertical", 2))
sketch5.addConstraint(Sketcher.Constraint("Horizontal", 5))
sketch5.addConstraint(Sketcher.Constraint("Vertical", 7))
sketch5.addConstraint(Sketcher.Constraint("Coincident", 1, 3, -1, 1))
sketch5.addConstraint(Sketcher.Constraint("Coincident", 3, 3, -1, 1))
sketch5.addConstraint(Sketcher.Constraint("Coincident", 4, 3, -1, 1))
sketch5.addConstraint(Sketcher.Constraint("Coincident", 6, 3, -1, 1))
sketch5.addConstraint(Sketcher.Constraint("Equal", 1, 3))
sketch5.addConstraint(Sketcher.Constraint("Equal", 3, 4))
sketch5.addConstraint(Sketcher.Constraint("Equal", 4, 6))
sketch5.addConstraint(Sketcher.Constraint("Horizontal", 2, 1, 6, 1))
sketch5.addConstraint(Sketcher.Constraint("Vertical", 0, 1, 4, 1))
sketch5.addConstraint(Sketcher.Constraint("Radius", 1, Q("178 mm")))
sketch5.addConstraint(Sketcher.Constraint("DistanceY", -1, 1, 0, 1, Q("150 mm")))
sketch5.addConstraint(Sketcher.Constraint("DistanceX", -1, 1, 2, 1, Q("170 mm")))
pocket4 = doc.addObject("PartDesign::Pocket", "Pocket003")
body.addObject(pocket4)
pocket4.Profile = sketch5
pocket4.Length = 10

sketch6 = doc.addObject("Sketcher::SketchObject", "Sketch005")
body.addObject(sketch6)
sketch6.AttachmentSupport = (doc.XZ_Plane, [""])
sketch6.MapMode = "FlatFace"
sketch6.addGeometry(Part.LineSegment(App.Vector(-50, -85, 0), App.Vector(-50, -88, 0)), False)
sketch6.addGeometry(Part.LineSegment(App.Vector(-50, -88, 0), App.Vector(50, -88, 0)), False)
sketch6.addGeometry(Part.LineSegment(App.Vector(50, -88, 0), App.Vector(50, -85, 0)), False)
sketch6.addGeometry(Part.LineSegment(App.Vector(50, -85, 0), App.Vector(-50, -85, 0)), False)
sketch6.addGeometry(Part.LineSegment(App.Vector(30, -135, 0), App.Vector(65, -135, 0)), False)
sketch6.addGeometry(Part.LineSegment(App.Vector(65, -135, 0), App.Vector(65, -103, 0)), False)
sketch6.addGeometry(Part.LineSegment(App.Vector(65, -103, 0), App.Vector(30, -103, 0)), False)
sketch6.addGeometry(Part.LineSegment(App.Vector(30, -103, 0), App.Vector(30, -135, 0)), False)
sketch6.addGeometry(Part.LineSegment(App.Vector(-65, -103, 0), App.Vector(-65, -135, 0)), False)
sketch6.addGeometry(Part.LineSegment(App.Vector(-65, -135, 0), App.Vector(-30, -135, 0)), False)
sketch6.addGeometry(Part.LineSegment(App.Vector(-30, -135, 0), App.Vector(-30, -103, 0)), False)
sketch6.addGeometry(Part.LineSegment(App.Vector(-30, -103, 0), App.Vector(-65, -103, 0)), False)
sketch6.addGeometry(Part.LineSegment(App.Vector(-50, 88, 0), App.Vector(-50, 85, 0)), False)
sketch6.addGeometry(Part.LineSegment(App.Vector(-50, 85, 0), App.Vector(50, 85, 0)), False)
sketch6.addGeometry(Part.LineSegment(App.Vector(50, 85, 0), App.Vector(50, 88, 0)), False)
sketch6.addGeometry(Part.LineSegment(App.Vector(50, 88, 0), App.Vector(-50, 88, 0)), False)
sketch6.addGeometry(Part.LineSegment(App.Vector(-65, 103, 0), App.Vector(-30, 103, 0)), False)
sketch6.addGeometry(Part.LineSegment(App.Vector(-30, 103, 0), App.Vector(-30, 135, 0)), False)
sketch6.addGeometry(Part.LineSegment(App.Vector(-30, 135, 0), App.Vector(-65, 135, 0)), False)
sketch6.addGeometry(Part.LineSegment(App.Vector(-65, 135, 0), App.Vector(-65, 103, 0)), False)
sketch6.addGeometry(Part.LineSegment(App.Vector(65, 103, 0), App.Vector(65, 135, 0)), False)
sketch6.addGeometry(Part.LineSegment(App.Vector(65, 135, 0), App.Vector(30, 135, 0)), False)
sketch6.addGeometry(Part.LineSegment(App.Vector(30, 135, 0), App.Vector(30, 103, 0)), False)
sketch6.addGeometry(Part.LineSegment(App.Vector(30, 103, 0), App.Vector(65, 103, 0)), False)
sketch6.addConstraint(Sketcher.Constraint("Coincident", 0, 2, 1, 1))
sketch6.addConstraint(Sketcher.Constraint("Coincident", 1, 2, 2, 1))
sketch6.addConstraint(Sketcher.Constraint("Coincident", 2, 2, 3, 1))
sketch6.addConstraint(Sketcher.Constraint("Coincident", 3, 2, 0, 1))
sketch6.addConstraint(Sketcher.Constraint("Coincident", 4, 2, 5, 1))
sketch6.addConstraint(Sketcher.Constraint("Coincident", 5, 2, 6, 1))
sketch6.addConstraint(Sketcher.Constraint("Coincident", 6, 2, 7, 1))
sketch6.addConstraint(Sketcher.Constraint("Coincident", 7, 2, 4, 1))
sketch6.addConstraint(Sketcher.Constraint("Coincident", 8, 2, 9, 1))
sketch6.addConstraint(Sketcher.Constraint("Coincident", 9, 2, 10, 1))
sketch6.addConstraint(Sketcher.Constraint("Coincident", 10, 2, 11, 1))
sketch6.addConstraint(Sketcher.Constraint("Coincident", 11, 2, 8, 1))
sketch6.addConstraint(Sketcher.Constraint("Coincident", 12, 2, 13, 1))
sketch6.addConstraint(Sketcher.Constraint("Coincident", 13, 2, 14, 1))
sketch6.addConstraint(Sketcher.Constraint("Coincident", 14, 2, 15, 1))
sketch6.addConstraint(Sketcher.Constraint("Coincident", 15, 2, 12, 1))
sketch6.addConstraint(Sketcher.Constraint("Coincident", 16, 2, 17, 1))
sketch6.addConstraint(Sketcher.Constraint("Coincident", 17, 2, 18, 1))
sketch6.addConstraint(Sketcher.Constraint("Coincident", 18, 2, 19, 1))
sketch6.addConstraint(Sketcher.Constraint("Coincident", 19, 2, 16, 1))
sketch6.addConstraint(Sketcher.Constraint("Coincident", 20, 2, 21, 1))
sketch6.addConstraint(Sketcher.Constraint("Coincident", 21, 2, 22, 1))
sketch6.addConstraint(Sketcher.Constraint("Coincident", 22, 2, 23, 1))
sketch6.addConstraint(Sketcher.Constraint("Coincident", 23, 2, 20, 1))
sketch6.addConstraint(Sketcher.Constraint("Vertical", 0))
sketch6.addConstraint(Sketcher.Constraint("Horizontal", 1))
sketch6.addConstraint(Sketcher.Constraint("Vertical", 2))
sketch6.addConstraint(Sketcher.Constraint("Horizontal", 3))
sketch6.addConstraint(Sketcher.Constraint("Horizontal", 4))
sketch6.addConstraint(Sketcher.Constraint("Vertical", 5))
sketch6.addConstraint(Sketcher.Constraint("Horizontal", 6))
sketch6.addConstraint(Sketcher.Constraint("Vertical", 7))
sketch6.addConstraint(Sketcher.Constraint("Vertical", 8))
sketch6.addConstraint(Sketcher.Constraint("Horizontal", 9))
sketch6.addConstraint(Sketcher.Constraint("Vertical", 10))
sketch6.addConstraint(Sketcher.Constraint("Horizontal", 11))
sketch6.addConstraint(Sketcher.Constraint("Vertical", 12))
sketch6.addConstraint(Sketcher.Constraint("Horizontal", 13))
sketch6.addConstraint(Sketcher.Constraint("Vertical", 14))
sketch6.addConstraint(Sketcher.Constraint("Horizontal", 15))
sketch6.addConstraint(Sketcher.Constraint("Horizontal", 16))
sketch6.addConstraint(Sketcher.Constraint("Vertical", 17))
sketch6.addConstraint(Sketcher.Constraint("Horizontal", 18))
sketch6.addConstraint(Sketcher.Constraint("Vertical", 19))
sketch6.addConstraint(Sketcher.Constraint("Vertical", 20))
sketch6.addConstraint(Sketcher.Constraint("Horizontal", 21))
sketch6.addConstraint(Sketcher.Constraint("Vertical", 22))
sketch6.addConstraint(Sketcher.Constraint("Horizontal", 23))
sketch6.addConstraint(Sketcher.Constraint("Symmetric", 2, 2, 12, 2, -1, 1))
sketch6.addConstraint(Sketcher.Constraint("Symmetric", 0, 2, 14, 2, -1, 1))
sketch6.addConstraint(Sketcher.Constraint("Symmetric", 6, 2, 16, 2, -1, 1))
sketch6.addConstraint(Sketcher.Constraint("Symmetric", 4, 2, 18, 2, -1, 1))
sketch6.addConstraint(Sketcher.Constraint("Symmetric", 8, 2, 20, 2, -1, 1))
sketch6.addConstraint(Sketcher.Constraint("Symmetric", 10, 2, 22, 2, -1, 1))
sketch6.addConstraint(Sketcher.Constraint("Symmetric", 4, 2, 8, 2, -2))
sketch6.addConstraint(Sketcher.Constraint("Symmetric", 6, 2, 10, 2, -2))
sketch6.addConstraint(Sketcher.Constraint("Vertical", 3, 2, 12, 2))
sketch6.addConstraint(Sketcher.Constraint("DistanceX", 1, 1, 1, 2, Q("100 mm")))
sketch6.addConstraint(Sketcher.Constraint("DistanceX", 4, 1, 4, 2, Q("35 mm")))
sketch6.addConstraint(Sketcher.Constraint("DistanceY", 0, 2, 0, 1, Q("3 mm")))
sketch6.addConstraint(Sketcher.Constraint("DistanceY", 5, 1, 5, 2, Q("32 mm")))
sketch6.addConstraint(Sketcher.Constraint("DistanceY", 0, 2, -1, 1, Q("88 mm")))
sketch6.addConstraint(Sketcher.Constraint("DistanceX", -1, 1, 4, 2, Q("65 mm")))
sketch6.addConstraint(Sketcher.Constraint("DistanceY", 4, 2, -1, 1, Q("135 mm")))
pocket5 = doc.addObject("PartDesign::Pocket", "Pocket004")
body.addObject(pocket5)
pocket5.Profile = sketch6
pocket5.Length = 10

sketch7 = doc.addObject("Sketcher::SketchObject", "Sketch006")
body.addObject(sketch7)
sketch7.AttachmentSupport = (doc.XZ_Plane, [""])
sketch7.MapMode = "FlatFace"
sketch7.addGeometry(Part.Circle(App.Vector(0, -50, 0), App.Vector(0, 0, 1), 15), False)
sketch7.addGeometry(Part.Circle(App.Vector(0, 50, 0), App.Vector(0, 0, 1), 15), False)
sketch7.addConstraint(Sketcher.Constraint("Equal", 0, 1))
sketch7.addConstraint(Sketcher.Constraint("Symmetric", 0, 3, 1, 3, -1, 1))
sketch7.addConstraint(Sketcher.Constraint("PointOnObject", 0, 3, -2))
sketch7.addConstraint(Sketcher.Constraint("Diameter", 0, Q("30 mm")))
sketch7.addConstraint(Sketcher.Constraint("DistanceY", 0, 3, -1, 1, Q("50 mm")))
pocket6 = doc.addObject("PartDesign::Pocket", "Pocket005")
body.addObject(pocket6)
pocket6.Profile = sketch7
pocket6.Length = 10

doc.recompute()
